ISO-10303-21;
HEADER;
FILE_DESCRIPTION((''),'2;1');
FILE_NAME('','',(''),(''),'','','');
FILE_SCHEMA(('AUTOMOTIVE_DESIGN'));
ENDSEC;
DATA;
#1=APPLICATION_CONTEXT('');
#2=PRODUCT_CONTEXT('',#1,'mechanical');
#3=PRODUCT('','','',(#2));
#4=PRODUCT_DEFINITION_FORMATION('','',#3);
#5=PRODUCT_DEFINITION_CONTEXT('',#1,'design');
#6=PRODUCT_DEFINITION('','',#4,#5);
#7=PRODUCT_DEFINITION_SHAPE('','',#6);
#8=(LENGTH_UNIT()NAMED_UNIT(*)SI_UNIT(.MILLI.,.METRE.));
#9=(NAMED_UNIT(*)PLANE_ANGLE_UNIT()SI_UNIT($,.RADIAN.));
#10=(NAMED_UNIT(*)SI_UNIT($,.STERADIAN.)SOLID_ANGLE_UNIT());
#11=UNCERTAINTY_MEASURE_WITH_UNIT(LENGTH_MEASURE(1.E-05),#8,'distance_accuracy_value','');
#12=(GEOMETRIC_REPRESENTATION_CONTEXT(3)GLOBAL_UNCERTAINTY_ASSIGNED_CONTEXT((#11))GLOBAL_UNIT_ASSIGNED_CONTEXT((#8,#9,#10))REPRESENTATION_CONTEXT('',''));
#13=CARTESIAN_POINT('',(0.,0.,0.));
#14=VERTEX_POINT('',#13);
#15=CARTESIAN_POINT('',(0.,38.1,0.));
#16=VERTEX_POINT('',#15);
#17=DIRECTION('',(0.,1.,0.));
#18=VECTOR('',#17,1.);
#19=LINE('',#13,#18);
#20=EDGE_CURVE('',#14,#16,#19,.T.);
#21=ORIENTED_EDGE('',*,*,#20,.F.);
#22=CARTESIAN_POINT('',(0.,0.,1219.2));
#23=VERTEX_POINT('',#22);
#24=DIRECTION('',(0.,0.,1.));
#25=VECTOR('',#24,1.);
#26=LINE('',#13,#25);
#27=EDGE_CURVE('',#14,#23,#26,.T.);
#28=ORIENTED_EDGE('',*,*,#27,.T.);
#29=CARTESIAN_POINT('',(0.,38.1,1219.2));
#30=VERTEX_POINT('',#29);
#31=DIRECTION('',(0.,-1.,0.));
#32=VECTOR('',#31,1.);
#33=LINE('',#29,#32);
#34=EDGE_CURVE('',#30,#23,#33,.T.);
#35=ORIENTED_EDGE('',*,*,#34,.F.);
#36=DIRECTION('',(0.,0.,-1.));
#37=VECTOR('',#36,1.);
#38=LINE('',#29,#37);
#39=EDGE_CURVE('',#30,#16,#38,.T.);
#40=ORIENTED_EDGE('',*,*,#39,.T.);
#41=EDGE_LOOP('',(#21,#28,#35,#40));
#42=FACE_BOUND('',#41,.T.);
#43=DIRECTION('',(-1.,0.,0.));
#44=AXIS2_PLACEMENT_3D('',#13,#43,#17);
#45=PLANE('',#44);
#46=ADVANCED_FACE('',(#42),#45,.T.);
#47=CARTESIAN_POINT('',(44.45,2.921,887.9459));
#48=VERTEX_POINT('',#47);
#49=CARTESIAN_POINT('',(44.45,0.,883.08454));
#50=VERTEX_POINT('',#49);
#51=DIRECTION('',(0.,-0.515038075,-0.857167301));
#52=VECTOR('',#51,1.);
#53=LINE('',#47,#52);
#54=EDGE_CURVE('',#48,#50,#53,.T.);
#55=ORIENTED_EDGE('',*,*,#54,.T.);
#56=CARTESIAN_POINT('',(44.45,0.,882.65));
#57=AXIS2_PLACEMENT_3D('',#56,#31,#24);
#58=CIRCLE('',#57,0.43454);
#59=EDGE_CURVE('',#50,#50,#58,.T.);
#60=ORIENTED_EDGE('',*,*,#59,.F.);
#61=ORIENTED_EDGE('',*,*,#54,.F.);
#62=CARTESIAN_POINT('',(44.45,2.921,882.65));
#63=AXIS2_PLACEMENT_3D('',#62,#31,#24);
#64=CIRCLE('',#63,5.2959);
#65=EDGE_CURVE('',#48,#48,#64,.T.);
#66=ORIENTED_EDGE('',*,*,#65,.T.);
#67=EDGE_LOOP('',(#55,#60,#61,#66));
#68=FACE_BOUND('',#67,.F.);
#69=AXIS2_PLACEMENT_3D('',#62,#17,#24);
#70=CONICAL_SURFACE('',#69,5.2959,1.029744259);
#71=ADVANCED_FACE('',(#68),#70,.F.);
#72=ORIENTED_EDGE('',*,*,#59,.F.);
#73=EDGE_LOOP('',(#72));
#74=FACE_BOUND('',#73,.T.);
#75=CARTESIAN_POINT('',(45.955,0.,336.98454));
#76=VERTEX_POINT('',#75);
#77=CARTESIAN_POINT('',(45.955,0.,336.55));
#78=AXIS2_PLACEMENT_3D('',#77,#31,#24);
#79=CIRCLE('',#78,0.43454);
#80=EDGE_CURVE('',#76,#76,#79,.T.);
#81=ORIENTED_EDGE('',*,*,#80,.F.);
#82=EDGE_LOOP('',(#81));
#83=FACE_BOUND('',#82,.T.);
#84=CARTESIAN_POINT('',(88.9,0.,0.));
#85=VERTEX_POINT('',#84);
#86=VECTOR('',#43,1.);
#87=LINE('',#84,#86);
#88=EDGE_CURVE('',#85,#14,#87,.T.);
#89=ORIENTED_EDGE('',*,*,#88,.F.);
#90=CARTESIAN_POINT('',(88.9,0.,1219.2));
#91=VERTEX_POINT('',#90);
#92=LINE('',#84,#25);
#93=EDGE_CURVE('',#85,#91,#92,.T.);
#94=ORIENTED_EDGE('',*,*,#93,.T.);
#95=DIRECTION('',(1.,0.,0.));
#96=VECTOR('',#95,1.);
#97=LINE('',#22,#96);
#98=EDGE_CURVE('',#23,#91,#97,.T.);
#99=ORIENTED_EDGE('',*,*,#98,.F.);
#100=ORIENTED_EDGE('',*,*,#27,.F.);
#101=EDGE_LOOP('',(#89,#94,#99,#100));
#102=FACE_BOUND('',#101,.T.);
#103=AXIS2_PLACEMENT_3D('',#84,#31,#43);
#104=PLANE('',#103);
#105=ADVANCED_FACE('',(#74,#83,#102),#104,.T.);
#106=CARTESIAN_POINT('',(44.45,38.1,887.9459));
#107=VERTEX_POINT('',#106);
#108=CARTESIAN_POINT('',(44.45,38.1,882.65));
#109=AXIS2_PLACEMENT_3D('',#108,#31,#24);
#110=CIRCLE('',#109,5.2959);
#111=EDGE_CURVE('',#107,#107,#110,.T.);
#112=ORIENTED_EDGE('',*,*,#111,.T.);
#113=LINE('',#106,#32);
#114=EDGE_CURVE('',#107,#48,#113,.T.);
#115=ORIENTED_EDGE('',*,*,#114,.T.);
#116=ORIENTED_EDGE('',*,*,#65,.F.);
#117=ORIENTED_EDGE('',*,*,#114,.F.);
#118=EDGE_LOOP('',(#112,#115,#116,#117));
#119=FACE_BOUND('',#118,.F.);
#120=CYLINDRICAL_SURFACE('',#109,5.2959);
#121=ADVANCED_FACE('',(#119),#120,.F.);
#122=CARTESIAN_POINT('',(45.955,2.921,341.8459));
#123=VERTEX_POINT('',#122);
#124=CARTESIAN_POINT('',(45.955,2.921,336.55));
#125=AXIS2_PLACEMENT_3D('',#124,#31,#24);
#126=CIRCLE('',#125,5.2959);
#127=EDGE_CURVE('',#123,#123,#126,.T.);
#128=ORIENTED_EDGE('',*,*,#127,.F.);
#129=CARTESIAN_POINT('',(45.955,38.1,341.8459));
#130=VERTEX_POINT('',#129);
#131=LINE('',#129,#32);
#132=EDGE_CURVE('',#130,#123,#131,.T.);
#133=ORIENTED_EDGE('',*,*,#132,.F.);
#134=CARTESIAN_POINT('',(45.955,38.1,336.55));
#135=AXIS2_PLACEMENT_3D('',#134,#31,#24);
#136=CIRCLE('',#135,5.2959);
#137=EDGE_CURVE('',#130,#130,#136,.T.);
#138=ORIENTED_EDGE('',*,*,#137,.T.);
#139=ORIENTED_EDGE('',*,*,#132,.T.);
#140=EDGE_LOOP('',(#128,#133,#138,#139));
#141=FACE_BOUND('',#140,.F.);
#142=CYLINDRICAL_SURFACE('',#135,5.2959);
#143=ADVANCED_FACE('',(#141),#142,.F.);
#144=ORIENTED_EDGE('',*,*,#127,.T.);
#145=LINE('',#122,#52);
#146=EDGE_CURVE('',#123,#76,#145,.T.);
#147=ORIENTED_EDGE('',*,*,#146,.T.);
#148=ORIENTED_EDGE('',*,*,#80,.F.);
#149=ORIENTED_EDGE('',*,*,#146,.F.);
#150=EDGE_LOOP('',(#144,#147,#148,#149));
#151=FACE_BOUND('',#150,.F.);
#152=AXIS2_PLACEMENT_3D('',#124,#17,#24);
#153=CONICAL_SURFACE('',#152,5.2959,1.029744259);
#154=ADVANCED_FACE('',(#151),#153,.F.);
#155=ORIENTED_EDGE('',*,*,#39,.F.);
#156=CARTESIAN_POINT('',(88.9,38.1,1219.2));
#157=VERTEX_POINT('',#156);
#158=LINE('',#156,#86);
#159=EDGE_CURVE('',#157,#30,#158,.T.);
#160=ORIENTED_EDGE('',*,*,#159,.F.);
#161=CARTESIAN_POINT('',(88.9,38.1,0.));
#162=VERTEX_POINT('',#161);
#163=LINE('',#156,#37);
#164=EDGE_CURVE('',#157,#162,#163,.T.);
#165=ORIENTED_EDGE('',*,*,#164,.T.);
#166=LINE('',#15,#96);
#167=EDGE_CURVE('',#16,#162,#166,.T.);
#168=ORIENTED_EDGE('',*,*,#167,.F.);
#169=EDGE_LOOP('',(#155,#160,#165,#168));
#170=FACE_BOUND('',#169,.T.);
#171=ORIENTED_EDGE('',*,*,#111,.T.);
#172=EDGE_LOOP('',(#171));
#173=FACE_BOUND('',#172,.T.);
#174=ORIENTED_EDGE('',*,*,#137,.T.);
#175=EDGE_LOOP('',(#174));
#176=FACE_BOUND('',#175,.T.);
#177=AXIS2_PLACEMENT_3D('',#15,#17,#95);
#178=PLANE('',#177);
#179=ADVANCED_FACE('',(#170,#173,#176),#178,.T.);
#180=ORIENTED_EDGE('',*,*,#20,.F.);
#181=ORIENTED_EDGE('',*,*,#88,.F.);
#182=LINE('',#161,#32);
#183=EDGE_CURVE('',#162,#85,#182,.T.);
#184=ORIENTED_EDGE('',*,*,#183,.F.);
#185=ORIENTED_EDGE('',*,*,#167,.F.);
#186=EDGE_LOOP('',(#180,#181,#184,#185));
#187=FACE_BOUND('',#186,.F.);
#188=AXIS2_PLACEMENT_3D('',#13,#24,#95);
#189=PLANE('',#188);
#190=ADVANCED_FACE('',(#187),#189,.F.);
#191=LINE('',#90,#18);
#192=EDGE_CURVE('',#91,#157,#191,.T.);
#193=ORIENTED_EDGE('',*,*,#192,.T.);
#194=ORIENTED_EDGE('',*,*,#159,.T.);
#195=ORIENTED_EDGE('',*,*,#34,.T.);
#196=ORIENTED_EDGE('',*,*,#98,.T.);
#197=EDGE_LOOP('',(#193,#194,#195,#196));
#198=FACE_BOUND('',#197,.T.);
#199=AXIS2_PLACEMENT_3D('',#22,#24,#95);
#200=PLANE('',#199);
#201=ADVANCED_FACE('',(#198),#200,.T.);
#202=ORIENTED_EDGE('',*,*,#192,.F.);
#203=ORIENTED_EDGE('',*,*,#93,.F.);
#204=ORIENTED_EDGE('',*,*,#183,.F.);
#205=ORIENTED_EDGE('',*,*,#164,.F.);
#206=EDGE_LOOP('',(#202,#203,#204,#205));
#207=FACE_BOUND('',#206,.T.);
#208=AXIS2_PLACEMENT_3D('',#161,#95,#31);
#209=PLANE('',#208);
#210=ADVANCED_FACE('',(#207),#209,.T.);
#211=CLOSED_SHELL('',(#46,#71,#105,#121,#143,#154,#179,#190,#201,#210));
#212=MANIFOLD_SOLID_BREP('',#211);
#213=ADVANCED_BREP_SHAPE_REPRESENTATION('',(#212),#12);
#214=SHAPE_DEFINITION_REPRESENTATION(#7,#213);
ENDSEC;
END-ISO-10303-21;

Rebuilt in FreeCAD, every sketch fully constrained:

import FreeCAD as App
import Part
import Sketcher

V = App.Vector
Q = App.Units.Quantity


def add_polygon(sketch, points):
    """Adds a closed chain of lines whose ends are joined by coincident constraints."""
    first, n = sketch.GeometryCount, len(points)
    for a, b in zip(points, points[1:] + points[:1]):
        sketch.addGeometry(Part.LineSegment(App.Vector(*a, 0), App.Vector(*b, 0)), False)
    for i in range(n):
        sketch.addConstraint(Sketcher.Constraint("Coincident", first + i, 2, first + (i + 1) % n, 1))

doc = App.newDocument("Part")
body = doc.addObject("PartDesign::Body", "Body")

# Sketch on XY plane
sketch1 = body.newObject("Sketcher::SketchObject", "Sketch")
sketch1.AttachmentSupport = (doc.getObject("XY_Plane"), [""])
sketch1.MapMode = "FlatFace"
add_polygon(sketch1, [(0, 38.1), (0, 0), (88.9, 0), (88.9, 38.1)])  # lines 0-3
sketch1.addConstraint([
    Sketcher.Constraint("Vertical", 0),
    Sketcher.Constraint("Horizontal", 1),
    Sketcher.Constraint("Vertical", 2),
    Sketcher.Constraint("Horizontal", 3),
    Sketcher.Constraint("Coincident", 0, 2, -1, 1),
    Sketcher.Constraint("DistanceX", 1, 1, 1, 2, Q("3.5 in")),
    Sketcher.Constraint("DistanceY", 0, 2, 0, 1, Q("1.5 in")),
])
pad1 = body.newObject("PartDesign::Pad", "Pad")
pad1.Profile = sketch1
pad1.Length = Q("21 in")

# Sketch on XY plane
sketch2 = body.newObject("Sketcher::SketchObject", "Sketch001")
sketch2.AttachmentSupport = (doc.getObject("XY_Plane"), [""])
sketch2.MapMode = "FlatFace"
sketch2.AttachmentOffset = App.Placement(V(0, 0, 21 * 25.4), App.Rotation())
add_polygon(sketch2, [(88.9, 38.1), (0, 38.1), (0, 0), (88.9, 0)])  # lines 0-3
sketch2.addConstraint([
    Sketcher.Constraint("Horizontal", 0),
    Sketcher.Constraint("Vertical", 1),
    Sketcher.Constraint("Horizontal", 2),
    Sketcher.Constraint("Vertical", 3),
    Sketcher.Constraint("Coincident", 1, 2, -1, 1),
    Sketcher.Constraint("DistanceX", 0, 2, 0, 1, Q("3.5 in")),
    Sketcher.Constraint("DistanceY", 1, 2, 1, 1, Q("1.5 in")),
])
pad2 = body.newObject("PartDesign::Pad", "Pad001")
pad2.Profile = sketch2
pad2.Length = Q("27 in")

# Sketch on XZ plane
sketch3 = body.newObject("Sketcher::SketchObject", "Sketch002")
sketch3.AttachmentSupport = (doc.getObject("XZ_Plane"), [""])
sketch3.MapMode = "FlatFace"
sketch3.AttachmentOffset = App.Placement(V(0, 0, -1.5 * 25.4), App.Rotation())
sketch3.addGeometry([
    Part.Circle(V(44.45, 882.65, 0), V(0, 0, 1), 5.2959),
    Part.Circle(V(45.955, 336.55, 0), V(0, 0, 1), 5.2959),
], False)
sketch3.addConstraint([
    Sketcher.Constraint("Equal", 0, 1),
    Sketcher.Constraint("Diameter", 0, Q("0.417 in")),
    Sketcher.Constraint("DistanceY", 1, 3, 0, 3, Q("21.5 in")),
    Sketcher.Constraint("DistanceX", -1, 1, 0, 3, Q("1.75 in")),
    Sketcher.Constraint("DistanceY", -1, 1, 0, 3, Q("34.75 in")),
    Sketcher.Constraint("DistanceX", -1, 1, 1, 3, 45.955),
])
doc.recompute()
hole = body.newObject("PartDesign::Hole", "Hole")
hole.Profile = sketch3
hole.ThreadType = "None"
hole.Diameter = Q("0.417 in")
hole.DepthType = "Dimension"
hole.Depth = Q("1.385 in")
hole.DrillPoint = "Angled"
hole.DrillPointAngle = 118
hole.Reversed = True

doc.recompute()
